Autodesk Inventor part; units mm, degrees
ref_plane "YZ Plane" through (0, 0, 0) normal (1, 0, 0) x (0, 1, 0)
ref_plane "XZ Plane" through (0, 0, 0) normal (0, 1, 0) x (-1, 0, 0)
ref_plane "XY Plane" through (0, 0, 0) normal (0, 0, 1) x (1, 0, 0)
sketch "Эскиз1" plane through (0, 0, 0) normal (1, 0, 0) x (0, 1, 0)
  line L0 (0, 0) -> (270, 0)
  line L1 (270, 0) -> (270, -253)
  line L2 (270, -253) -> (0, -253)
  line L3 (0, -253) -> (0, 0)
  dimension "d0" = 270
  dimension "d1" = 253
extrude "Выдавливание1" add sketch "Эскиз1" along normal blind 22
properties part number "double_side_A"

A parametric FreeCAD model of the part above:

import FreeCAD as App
import Part
import Sketcher


def add_polygon(sketch, points):
    """Adds a closed chain of lines whose ends are joined by coincident constraints."""
    first, n = sketch.GeometryCount, len(points)
    for a, b in zip(points, points[1:] + points[:1]):
        sketch.addGeometry(Part.LineSegment(App.Vector(*a, 0), App.Vector(*b, 0)), False)
    for i in range(n):
        sketch.addConstraint(Sketcher.Constraint("Coincident", first + i, 2, first + (i + 1) % n, 1))

doc = App.newDocument("Part")
body = doc.addObject("PartDesign::Body", "Body")

# Sketch on YZ plane
sketch1 = body.newObject("Sketcher::SketchObject", "Sketch")
sketch1.AttachmentSupport = (doc.getObject("YZ_Plane"), [""])
sketch1.MapMode = "FlatFace"
add_polygon(sketch1, [(270, 0), (0, 0), (0, -253), (270, -253)])  # lines 0-3
sketch1.addConstraint([
    Sketcher.Constraint("Horizontal", 0),
    Sketcher.Constraint("Vertical", 1),
    Sketcher.Constraint("Horizontal", 2),
    Sketcher.Constraint("Vertical", 3),
    Sketcher.Constraint("Coincident", 0, 2, -1, 1),
    Sketcher.Constraint("DistanceX", 0, 2, 0, 1, 270.0),
    Sketcher.Constraint("DistanceY", 1, 2, 1, 1, 253.0),
])
pad1 = body.newObject("PartDesign::Pad", "Pad")
pad1.Profile = sketch1
pad1.Length = 22

doc.recompute()
